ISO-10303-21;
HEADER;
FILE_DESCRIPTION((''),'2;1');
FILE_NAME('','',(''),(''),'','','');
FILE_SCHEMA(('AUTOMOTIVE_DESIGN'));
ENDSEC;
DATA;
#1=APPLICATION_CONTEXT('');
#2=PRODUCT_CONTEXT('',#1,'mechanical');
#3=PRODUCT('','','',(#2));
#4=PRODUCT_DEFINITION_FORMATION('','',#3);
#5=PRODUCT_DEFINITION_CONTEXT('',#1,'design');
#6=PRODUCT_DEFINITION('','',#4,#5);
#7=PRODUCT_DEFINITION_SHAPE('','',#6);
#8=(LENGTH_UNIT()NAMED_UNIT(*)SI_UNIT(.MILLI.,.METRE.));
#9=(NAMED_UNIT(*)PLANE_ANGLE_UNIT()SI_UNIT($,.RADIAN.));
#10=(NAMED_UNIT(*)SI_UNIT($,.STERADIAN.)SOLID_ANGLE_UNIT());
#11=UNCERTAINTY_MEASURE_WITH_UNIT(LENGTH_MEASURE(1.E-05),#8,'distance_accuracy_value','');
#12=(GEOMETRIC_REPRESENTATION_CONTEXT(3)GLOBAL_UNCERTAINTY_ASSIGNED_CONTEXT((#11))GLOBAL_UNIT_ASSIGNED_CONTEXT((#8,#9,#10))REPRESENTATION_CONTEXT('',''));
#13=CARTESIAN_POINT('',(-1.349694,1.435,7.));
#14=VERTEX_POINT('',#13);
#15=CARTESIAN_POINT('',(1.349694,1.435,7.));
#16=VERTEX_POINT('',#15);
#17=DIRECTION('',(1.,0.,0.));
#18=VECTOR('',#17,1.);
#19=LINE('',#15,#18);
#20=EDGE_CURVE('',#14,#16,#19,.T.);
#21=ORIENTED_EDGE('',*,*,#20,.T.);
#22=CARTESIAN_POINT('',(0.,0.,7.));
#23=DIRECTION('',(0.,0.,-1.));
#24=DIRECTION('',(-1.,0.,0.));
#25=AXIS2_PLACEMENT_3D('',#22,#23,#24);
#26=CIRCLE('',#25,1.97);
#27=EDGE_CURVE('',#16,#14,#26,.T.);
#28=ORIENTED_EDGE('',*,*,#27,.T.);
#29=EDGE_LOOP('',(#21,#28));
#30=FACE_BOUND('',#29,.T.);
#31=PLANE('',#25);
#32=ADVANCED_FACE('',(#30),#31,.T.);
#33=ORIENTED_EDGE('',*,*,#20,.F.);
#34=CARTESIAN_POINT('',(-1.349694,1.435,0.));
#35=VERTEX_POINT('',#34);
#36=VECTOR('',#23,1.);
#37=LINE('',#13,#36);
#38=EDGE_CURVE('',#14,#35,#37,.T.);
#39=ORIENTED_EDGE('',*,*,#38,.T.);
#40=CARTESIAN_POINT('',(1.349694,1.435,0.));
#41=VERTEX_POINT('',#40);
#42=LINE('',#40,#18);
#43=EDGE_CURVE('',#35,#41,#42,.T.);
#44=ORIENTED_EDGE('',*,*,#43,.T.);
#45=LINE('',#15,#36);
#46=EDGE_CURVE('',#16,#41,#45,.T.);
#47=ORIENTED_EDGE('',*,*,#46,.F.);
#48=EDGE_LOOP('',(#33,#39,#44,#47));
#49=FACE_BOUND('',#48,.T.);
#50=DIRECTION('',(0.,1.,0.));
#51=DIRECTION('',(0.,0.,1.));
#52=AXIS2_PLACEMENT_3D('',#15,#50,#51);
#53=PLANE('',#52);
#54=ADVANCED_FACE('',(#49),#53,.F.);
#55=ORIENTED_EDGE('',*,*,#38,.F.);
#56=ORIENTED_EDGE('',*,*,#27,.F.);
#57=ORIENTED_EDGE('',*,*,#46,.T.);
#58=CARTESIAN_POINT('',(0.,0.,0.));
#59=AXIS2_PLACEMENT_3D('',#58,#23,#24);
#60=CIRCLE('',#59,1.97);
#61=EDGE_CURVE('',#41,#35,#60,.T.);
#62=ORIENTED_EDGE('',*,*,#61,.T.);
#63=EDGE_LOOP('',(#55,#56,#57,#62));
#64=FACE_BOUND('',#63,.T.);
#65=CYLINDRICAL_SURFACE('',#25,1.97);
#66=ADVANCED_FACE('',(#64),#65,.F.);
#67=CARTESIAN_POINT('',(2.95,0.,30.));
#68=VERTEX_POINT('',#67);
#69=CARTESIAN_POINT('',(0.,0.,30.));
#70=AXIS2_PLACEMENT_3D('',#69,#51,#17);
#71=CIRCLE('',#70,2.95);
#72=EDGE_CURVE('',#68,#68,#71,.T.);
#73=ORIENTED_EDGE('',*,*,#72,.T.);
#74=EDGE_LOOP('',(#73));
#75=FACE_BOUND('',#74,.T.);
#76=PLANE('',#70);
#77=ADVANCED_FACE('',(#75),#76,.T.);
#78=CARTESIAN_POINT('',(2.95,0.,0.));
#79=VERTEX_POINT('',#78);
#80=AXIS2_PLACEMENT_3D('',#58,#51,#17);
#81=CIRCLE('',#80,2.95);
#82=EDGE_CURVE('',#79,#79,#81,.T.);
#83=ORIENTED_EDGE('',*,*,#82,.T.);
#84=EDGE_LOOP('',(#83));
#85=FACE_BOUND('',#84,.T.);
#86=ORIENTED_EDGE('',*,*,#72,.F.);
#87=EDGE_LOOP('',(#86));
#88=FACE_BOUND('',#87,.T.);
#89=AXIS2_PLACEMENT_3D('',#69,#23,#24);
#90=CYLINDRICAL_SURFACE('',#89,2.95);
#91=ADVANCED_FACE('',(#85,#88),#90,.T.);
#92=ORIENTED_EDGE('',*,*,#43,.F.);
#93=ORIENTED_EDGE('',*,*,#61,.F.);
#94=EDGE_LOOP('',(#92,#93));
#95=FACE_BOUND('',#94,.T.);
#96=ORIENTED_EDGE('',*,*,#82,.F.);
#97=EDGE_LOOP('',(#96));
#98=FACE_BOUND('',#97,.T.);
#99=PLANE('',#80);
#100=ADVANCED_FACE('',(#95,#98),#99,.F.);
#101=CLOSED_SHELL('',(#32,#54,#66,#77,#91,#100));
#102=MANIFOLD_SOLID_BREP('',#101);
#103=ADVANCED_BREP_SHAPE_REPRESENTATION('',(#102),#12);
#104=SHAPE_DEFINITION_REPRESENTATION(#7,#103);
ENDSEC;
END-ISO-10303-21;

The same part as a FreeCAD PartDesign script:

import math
import FreeCAD as App
import Part
import Sketcher

V = App.Vector
Q = App.Units.Quantity

doc = App.newDocument("Part")
params = doc.addObject("Spreadsheet::Sheet", "Params")
for row, (alias, value) in enumerate([
    ("sketch1_diameter", "5.9 mm"),
    ("pad1_length", "30 mm"),
    ("sketch2_radius", "1.97 mm"),
    ("pocket1_length", "7 mm"),
], start=1):
    params.set(f"A{row}", alias)
    params.set(f"B{row}", "=" + value)
    params.setAlias(f"B{row}", alias)

body = doc.addObject("PartDesign::Body", "Body")

sketch1 = body.newObject("Sketcher::SketchObject", "Sketch")
sketch1.AttachmentSupport = (doc.getObject("XY_Plane"), [""])
sketch1.MapMode = "FlatFace"
sketch1.addGeometry(Part.Circle(V(0, 0, 0), V(0, 0, 1), 3), False)
sketch1.addConstraint([
    Sketcher.Constraint("Coincident", 0, 3, -1, 1),
    Sketcher.Constraint("Diameter", 0, Q("5.9 mm")),
])
sketch1.setExpression("Constraints[1]", "Params.sketch1_diameter")
pad1 = body.newObject("PartDesign::Pad", "Pad")
pad1.Profile = sketch1
pad1.setExpression("Length", "Params.pad1_length")

sketch2 = body.newObject("Sketcher::SketchObject", "Sketch001")
sketch2.AttachmentSupport = (doc.getObject("XY_Plane"), [""])
sketch2.MapMode = "FlatFace"
sketch2.addGeometry([
    Part.LineSegment(V(-1.3, 1.4, 0), V(1.3, 1.4, 0)),
    Part.ArcOfCircle(Part.Circle(V(0, 0, 0), V(0, 0, 1), 2), math.radians(133), math.radians(407)),
], False)
sketch2.addConstraint([
    Sketcher.Constraint("Coincident", 0, 1, 1, 1),
    Sketcher.Constraint("Coincident", 1, 2, 0, 2),
    Sketcher.Constraint("Horizontal", 0),
    Sketcher.Constraint("Coincident", 1, 3, -1, 1),
    Sketcher.Constraint("Radius", 1, Q("1.97 mm")),
    Sketcher.Constraint("DistanceY", -1, 1, 0, 1, Q("1.435 mm")),
])
sketch2.setExpression("Constraints[4]", "Params.sketch2_radius")
pocket1 = body.newObject("PartDesign::Pocket", "Pocket")
pocket1.Profile = sketch2
pocket1.setExpression("Length", "Params.pocket1_length")
pocket1.Reversed = True

doc.recompute()
